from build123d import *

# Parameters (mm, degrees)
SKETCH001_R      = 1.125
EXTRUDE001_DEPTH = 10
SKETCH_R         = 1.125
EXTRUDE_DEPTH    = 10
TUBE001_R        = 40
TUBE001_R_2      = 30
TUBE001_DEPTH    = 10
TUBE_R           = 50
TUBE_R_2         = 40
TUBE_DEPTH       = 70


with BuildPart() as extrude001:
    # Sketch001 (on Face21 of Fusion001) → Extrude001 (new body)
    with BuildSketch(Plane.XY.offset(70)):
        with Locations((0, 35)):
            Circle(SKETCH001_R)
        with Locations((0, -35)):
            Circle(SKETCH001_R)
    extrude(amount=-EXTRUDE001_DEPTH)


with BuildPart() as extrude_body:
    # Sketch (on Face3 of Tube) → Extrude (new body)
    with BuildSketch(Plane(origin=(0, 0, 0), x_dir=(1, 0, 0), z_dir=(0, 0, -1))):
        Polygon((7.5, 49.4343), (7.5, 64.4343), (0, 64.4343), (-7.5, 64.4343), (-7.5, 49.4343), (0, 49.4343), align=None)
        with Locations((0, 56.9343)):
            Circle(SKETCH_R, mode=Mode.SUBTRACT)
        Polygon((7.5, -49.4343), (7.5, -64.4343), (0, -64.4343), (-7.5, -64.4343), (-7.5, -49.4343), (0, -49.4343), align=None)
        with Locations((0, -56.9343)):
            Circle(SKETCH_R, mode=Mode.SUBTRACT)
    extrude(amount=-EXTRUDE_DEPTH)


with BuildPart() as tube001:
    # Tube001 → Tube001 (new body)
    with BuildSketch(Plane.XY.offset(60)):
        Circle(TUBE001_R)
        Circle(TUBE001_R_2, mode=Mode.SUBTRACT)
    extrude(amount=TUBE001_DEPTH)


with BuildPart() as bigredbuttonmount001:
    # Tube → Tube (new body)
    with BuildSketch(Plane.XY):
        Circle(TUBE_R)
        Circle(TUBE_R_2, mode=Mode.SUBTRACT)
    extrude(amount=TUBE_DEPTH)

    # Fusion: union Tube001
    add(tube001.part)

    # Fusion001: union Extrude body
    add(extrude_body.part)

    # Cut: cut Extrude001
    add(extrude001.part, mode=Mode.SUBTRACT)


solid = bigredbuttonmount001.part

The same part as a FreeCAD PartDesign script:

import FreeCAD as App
import Part
import Sketcher
from FreeCAD import Vector


def add_polygon(sketch, points):
    """Adds a closed chain of lines whose ends are joined by coincident constraints."""
    first, n = sketch.GeometryCount, len(points)
    for a, b in zip(points, points[1:] + points[:1]):
        sketch.addGeometry(Part.LineSegment(App.Vector(*a, 0), App.Vector(*b, 0)), False)
    for i in range(n):
        sketch.addConstraint(Sketcher.Constraint("Coincident", first + i, 2, first + (i + 1) % n, 1))

doc = App.newDocument("Part")
body = doc.addObject("PartDesign::Body", "Body")
body.AllowCompound = True

sketch1 = body.newObject("Sketcher::SketchObject", "Sketch")
sketch1.AttachmentSupport = (doc.getObject("XY_Plane"), [""])
sketch1.MapMode = "FlatFace"
sketch1.AttachmentOffset = App.Placement(Vector(0, 0, 70), App.Rotation())
sketch1.addGeometry(Part.Circle(Vector(0, 35, 0), Vector(0, 0, 1), 1.1), False)
sketch1.addGeometry(Part.Circle(Vector(0, -35, 0), Vector(0, 0, 1), 1.1), False)
sketch1.addConstraint(Sketcher.Constraint("Equal", 0, 1))
sketch1.addConstraint(Sketcher.Constraint("Symmetric", 0, 3, 1, 3, -1, 1))
sketch1.addConstraint(Sketcher.Constraint("PointOnObject", 0, 3, -2))
sketch1.addConstraint(Sketcher.Constraint("Diameter", 0, 2.25))
sketch1.addConstraint(Sketcher.Constraint("DistanceY", -1, 1, 0, 3, 35.0))
pad1 = body.newObject("PartDesign::Pad", "Pad")
pad1.Profile = sketch1
pad1.Length = 10
pad1.Reversed = True
body2 = doc.addObject("PartDesign::Body", "Body001")
body2.AllowCompound = True

sketch2 = body2.newObject("Sketcher::SketchObject", "Sketch001")
sketch2.AttachmentSupport = (doc.getObject("XY_Plane001"), [""])
sketch2.MapMode = "FlatFace"
add_polygon(sketch2, [(7.5, -49.4), (7.5, -64.4), (-7.5, -64.4), (-7.5, -49.4)])
sketch2.addGeometry(Part.Circle(Vector(0, -56.9, 0), Vector(0, 0, 1), 1.1), False)
add_polygon(sketch2, [(7.5, 64.4), (7.5, 49.4), (-7.5, 49.4), (-7.5, 64.4)])
sketch2.addGeometry(Part.Circle(Vector(0, 56.9, 0), Vector(0, 0, 1), 1.1), False)
sketch2.addConstraint(Sketcher.Constraint("Vertical", 0))
sketch2.addConstraint(Sketcher.Constraint("Horizontal", 1))
sketch2.addConstraint(Sketcher.Constraint("Vertical", 2))
sketch2.addConstraint(Sketcher.Constraint("Horizontal", 3))
sketch2.addConstraint(Sketcher.Constraint("Vertical", 5))
sketch2.addConstraint(Sketcher.Constraint("Horizontal", 6))
sketch2.addConstraint(Sketcher.Constraint("Vertical", 7))
sketch2.addConstraint(Sketcher.Constraint("Horizontal", 8))
sketch2.addConstraint(Sketcher.Constraint("Equal", 4, 9))
sketch2.addConstraint(Sketcher.Constraint("Symmetric", 4, 3, 9, 3, -1, 1))
sketch2.addConstraint(Sketcher.Constraint("Symmetric", 2, 2, 5, 2, -1, 1))
sketch2.addConstraint(Sketcher.Constraint("Symmetric", 0, 2, 7, 2, -1, 1))
sketch2.addConstraint(Sketcher.Constraint("PointOnObject", 4, 3, -2))
sketch2.addConstraint(Sketcher.Constraint("Vertical", 3, 2, 5, 2))
sketch2.addConstraint(Sketcher.Constraint("Equal", 8, 0))
sketch2.addConstraint(Sketcher.Constraint("Diameter", 4, 2.25))
sketch2.addConstraint(Sketcher.Constraint("DistanceX", 1, 2, 1, 1, 15.0))
sketch2.addConstraint(Sketcher.Constraint("DistanceY", 0, 2, 4, 3, 7.5))
sketch2.addConstraint(Sketcher.Constraint("DistanceY", 4, 3, -1, 1, 56.9343))
pad2 = body2.newObject("PartDesign::Pad", "Pad001")
pad2.Profile = sketch2
pad2.Length = 10
body3 = doc.addObject("PartDesign::Body", "Body002")

sketch3 = body3.newObject("Sketcher::SketchObject", "Sketch002")
sketch3.AttachmentSupport = (doc.getObject("XY_Plane002"), [""])
sketch3.MapMode = "FlatFace"
sketch3.AttachmentOffset = App.Placement(Vector(0, 0, 60), App.Rotation())
sketch3.addGeometry(Part.Circle(Vector(0, 0, 0), Vector(0, 0, 1), 40), False)
sketch3.addGeometry(Part.Circle(Vector(0, 0, 0), Vector(0, 0, 1), 30), False)
sketch3.addConstraint(Sketcher.Constraint("Coincident", 0, 3, -1, 1))
sketch3.addConstraint(Sketcher.Constraint("Coincident", 1, 3, -1, 1))
sketch3.addConstraint(Sketcher.Constraint("Diameter", 0, 80.0))
sketch3.addConstraint(Sketcher.Constraint("Diameter", 1, 60.0))
pad3 = body3.newObject("PartDesign::Pad", "Pad002")
pad3.Profile = sketch3
pad3.Length = 10
body4 = doc.addObject("PartDesign::Body", "Body003")

sketch4 = body4.newObject("Sketcher::SketchObject", "Sketch003")
sketch4.AttachmentSupport = (doc.getObject("XY_Plane003"), [""])
sketch4.MapMode = "FlatFace"
sketch4.addGeometry(Part.Circle(Vector(0, 0, 0), Vector(0, 0, 1), 50), False)
sketch4.addGeometry(Part.Circle(Vector(0, 0, 0), Vector(0, 0, 1), 40), False)
sketch4.addConstraint(Sketcher.Constraint("Coincident", 0, 3, -1, 1))
sketch4.addConstraint(Sketcher.Constraint("Coincident", 1, 3, -1, 1))
sketch4.addConstraint(Sketcher.Constraint("Diameter", 0, 100.0))
sketch4.addConstraint(Sketcher.Constraint("Diameter", 1, 80.0))
pad4 = body4.newObject("PartDesign::Pad", "Pad003")
pad4.Profile = sketch4
pad4.Length = 70
doc.recompute()

boolean = body4.newObject("PartDesign::Boolean", "Boolean")
boolean.Type = "Fuse"
boolean.addObjects([body3])
doc.recompute()

boolean2 = body4.newObject("PartDesign::Boolean", "Boolean001")
boolean2.Type = "Fuse"
boolean2.addObjects([body2])
doc.recompute()

boolean3 = body4.newObject("PartDesign::Boolean", "Boolean002")
boolean3.Type = "Cut"
boolean3.addObjects([body])

doc.recompute()
